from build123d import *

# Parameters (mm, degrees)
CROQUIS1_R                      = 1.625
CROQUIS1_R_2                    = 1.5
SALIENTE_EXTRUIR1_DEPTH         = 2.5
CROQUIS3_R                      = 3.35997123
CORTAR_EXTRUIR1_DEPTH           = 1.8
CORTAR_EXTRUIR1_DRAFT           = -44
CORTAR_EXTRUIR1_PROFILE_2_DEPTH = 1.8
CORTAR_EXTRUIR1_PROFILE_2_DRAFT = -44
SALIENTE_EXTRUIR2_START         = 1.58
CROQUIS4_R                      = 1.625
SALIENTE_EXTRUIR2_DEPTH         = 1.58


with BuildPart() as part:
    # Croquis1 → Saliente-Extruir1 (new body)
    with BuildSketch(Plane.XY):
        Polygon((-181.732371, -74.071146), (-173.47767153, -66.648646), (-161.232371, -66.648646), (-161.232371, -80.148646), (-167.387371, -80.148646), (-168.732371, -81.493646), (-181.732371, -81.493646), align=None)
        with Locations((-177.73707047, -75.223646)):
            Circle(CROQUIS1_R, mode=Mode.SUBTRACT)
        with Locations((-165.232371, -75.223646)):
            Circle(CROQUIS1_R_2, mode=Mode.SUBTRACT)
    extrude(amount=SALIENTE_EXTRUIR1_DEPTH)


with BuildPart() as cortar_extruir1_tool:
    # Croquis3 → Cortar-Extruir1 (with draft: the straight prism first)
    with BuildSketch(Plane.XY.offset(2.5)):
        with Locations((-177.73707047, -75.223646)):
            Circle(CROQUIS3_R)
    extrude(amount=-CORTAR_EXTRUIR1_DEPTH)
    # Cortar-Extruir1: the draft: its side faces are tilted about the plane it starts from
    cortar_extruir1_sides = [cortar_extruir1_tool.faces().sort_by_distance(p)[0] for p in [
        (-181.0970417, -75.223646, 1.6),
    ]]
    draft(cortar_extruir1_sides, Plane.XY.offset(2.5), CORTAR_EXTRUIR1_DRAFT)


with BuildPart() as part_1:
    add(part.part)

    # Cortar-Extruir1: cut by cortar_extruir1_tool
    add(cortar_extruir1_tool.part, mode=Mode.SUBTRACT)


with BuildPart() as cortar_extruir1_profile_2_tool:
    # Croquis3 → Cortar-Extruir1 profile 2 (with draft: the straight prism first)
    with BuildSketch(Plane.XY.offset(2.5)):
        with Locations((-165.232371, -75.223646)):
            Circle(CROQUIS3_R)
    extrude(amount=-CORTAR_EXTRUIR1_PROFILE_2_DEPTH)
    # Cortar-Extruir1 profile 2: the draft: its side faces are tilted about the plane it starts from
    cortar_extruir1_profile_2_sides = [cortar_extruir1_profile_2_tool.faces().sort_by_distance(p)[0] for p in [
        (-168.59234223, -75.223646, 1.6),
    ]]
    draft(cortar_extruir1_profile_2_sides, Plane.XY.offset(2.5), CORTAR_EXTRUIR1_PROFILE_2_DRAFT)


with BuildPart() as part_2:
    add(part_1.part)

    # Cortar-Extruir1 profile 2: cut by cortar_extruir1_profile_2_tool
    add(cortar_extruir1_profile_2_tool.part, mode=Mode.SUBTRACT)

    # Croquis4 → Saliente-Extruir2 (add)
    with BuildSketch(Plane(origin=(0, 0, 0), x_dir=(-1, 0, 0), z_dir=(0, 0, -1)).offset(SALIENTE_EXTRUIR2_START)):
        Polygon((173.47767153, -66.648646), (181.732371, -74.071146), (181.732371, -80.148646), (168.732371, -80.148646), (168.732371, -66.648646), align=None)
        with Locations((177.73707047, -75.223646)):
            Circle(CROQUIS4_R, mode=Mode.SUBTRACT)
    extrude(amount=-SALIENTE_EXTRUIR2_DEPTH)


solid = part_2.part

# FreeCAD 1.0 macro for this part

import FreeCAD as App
import Part
import Sketcher
from FreeCAD import Vector
Q = App.Units.Quantity


def faces_at(feature, points):
    """Names of the faces that lie closest to the given points."""
    faces = feature.Shape.Faces
    near = lambda p: min(range(len(faces)), key=lambda i: faces[i].distToShape(Part.Vertex(*p))[0])
    return sorted({f"Face{near(p) + 1}" for p in points})


def add_polygon(sketch, points):
    """Adds a closed chain of lines whose ends are joined by coincident constraints."""
    first, n = sketch.GeometryCount, len(points)
    for a, b in zip(points, points[1:] + points[:1]):
        sketch.addGeometry(Part.LineSegment(App.Vector(*a, 0), App.Vector(*b, 0)), False)
    for i in range(n):
        sketch.addConstraint(Sketcher.Constraint("Coincident", first + i, 2, first + (i + 1) % n, 1))

doc = App.newDocument("Part")
body = doc.addObject("PartDesign::Body", "Body")

# Sketch on XY plane
sketch1 = body.newObject("Sketcher::SketchObject", "Sketch")
sketch1.AttachmentSupport = (doc.getObject("XY_Plane"), [""])
sketch1.MapMode = "FlatFace"
add_polygon(sketch1, [(-173.5, -66.6), (-181.7, -74.1), (-181.7, -81.5), (-168.7, -81.5), (-167.4, -80.1), (-161.2, -80.1), (-161.2, -66.6)])  # lines 0-6
sketch1.addGeometry(Part.Circle(Vector(-165.2, -75.2, 0), Vector(0, 0, 1), 1.5), False)  # 7
sketch1.addGeometry(Part.Circle(Vector(-177.7, -75.2, 0), Vector(0, 0, 1), 1.6), False)  # 8
sketch1.addConstraint([
    Sketcher.Constraint("Vertical", 1),
    Sketcher.Constraint("Horizontal", 2),
    Sketcher.Constraint("Horizontal", 4),
    Sketcher.Constraint("Vertical", 5),
    Sketcher.Constraint("Horizontal", 6),
    Sketcher.Constraint("Horizontal", 7, 3, 8, 3),
    Sketcher.Constraint("Diameter", 7, Q("3 mm")),
    Sketcher.Constraint("Diameter", 8, Q("3.25 mm")),
    Sketcher.Constraint("DistanceX", 2, 1, 2, 2, Q("13 mm")),
    Sketcher.Constraint("Angle", 3, Q("45 deg")),
    Sketcher.Constraint("DistanceY", 5, 1, 5, 2, Q("13.5 mm")),
    Sketcher.Constraint("DistanceX", 7, 3, 4, 2, Q("4 mm")),
    Sketcher.Constraint("DistanceX", 0, 2, 7, 3, Q("16.5 mm")),
    Sketcher.Constraint("DistanceX", 4, 1, 4, 2, Q("6.155 mm")),
    Sketcher.Constraint("DistanceY", 1, 2, 8, 3, Q("6.27 mm")),
    Sketcher.Constraint("DistanceX", 6, 2, 6, 1, Q("12.245301 mm")),
    Sketcher.Constraint("DistanceY", 1, 2, 1, 1, Q("7.4225 mm")),
    Sketcher.Constraint("DistanceX", 8, 3, 7, 3, Q("12.504699 mm")),
    Sketcher.Constraint("DistanceX", 7, 3, -1, 1, Q("165.232371 mm")),
    Sketcher.Constraint("DistanceY", 7, 3, -1, 1, Q("75.223646 mm")),
])
pad1 = body.newObject("PartDesign::Pad", "Pad")
pad1.Profile = sketch1
pad1.Length = 2.5
body2 = doc.addObject("PartDesign::Body", "Body001")

# Sketch on XY plane
sketch2 = body2.newObject("Sketcher::SketchObject", "Sketch001")
sketch2.AttachmentSupport = (doc.getObject("XY_Plane001"), [""])
sketch2.MapMode = "FlatFace"
sketch2.AttachmentOffset = App.Placement(Vector(0, 0, 2.5), App.Rotation())
sketch2.addGeometry(Part.Circle(Vector(-177.7, -75.2, 0), Vector(0, 0, 1), 3.4), False)
sketch2.addConstraint([
    Sketcher.Constraint("Diameter", 0, Q("6.719942 mm")),
    Sketcher.Constraint("DistanceX", 0, 3, -1, 1, Q("177.73707 mm")),
    Sketcher.Constraint("DistanceY", 0, 3, -1, 1, Q("75.223646 mm")),
])
pad2 = body2.newObject("PartDesign::Pad", "Pad001")
pad2.Profile = sketch2
pad2.Length = 1.8
pad2.Reversed = True
doc.recompute()

datumplane = body2.newObject("PartDesign::Plane", "DatumPlane")
datumplane.AttachmentSupport = (doc.getObject("XY_Plane001"), [""])
datumplane.MapMode = "FlatFace"
datumplane.AttachmentOffset = App.Placement(Vector(0, 0, 2.5), App.Rotation())
draft = body2.newObject("PartDesign::Draft", "Draft")
draft.Base = (pad2, faces_at(pad2, [(-181.097, -75.224, 1.6)]))
draft.NeutralPlane = (datumplane, [""])
draft.Angle = 44
draft.Reversed = True
doc.recompute()

boolean = body.newObject("PartDesign::Boolean", "Boolean")
boolean.Type = "Cut"
boolean.addObjects([body2])
body3 = doc.addObject("PartDesign::Body", "Body002")

# Sketch on XY plane
sketch3 = body3.newObject("Sketcher::SketchObject", "Sketch002")
sketch3.AttachmentSupport = (doc.getObject("XY_Plane002"), [""])
sketch3.MapMode = "FlatFace"
sketch3.AttachmentOffset = App.Placement(Vector(0, 0, 2.5), App.Rotation())
sketch3.addGeometry(Part.Circle(Vector(-165.2, -75.2, 0), Vector(0, 0, 1), 3.4), False)
sketch3.addConstraint([
    Sketcher.Constraint("Diameter", 0, Q("6.719942 mm")),
    Sketcher.Constraint("DistanceX", 0, 3, -1, 1, Q("165.232371 mm")),
    Sketcher.Constraint("DistanceY", 0, 3, -1, 1, Q("75.223646 mm")),
])
pad3 = body3.newObject("PartDesign::Pad", "Pad002")
pad3.Profile = sketch3
pad3.Length = 1.8
pad3.Reversed = True
doc.recompute()

datumplane2 = body3.newObject("PartDesign::Plane", "DatumPlane001")
datumplane2.AttachmentSupport = (doc.getObject("XY_Plane002"), [""])
datumplane2.MapMode = "FlatFace"
datumplane2.AttachmentOffset = App.Placement(Vector(0, 0, 2.5), App.Rotation())
draft2 = body3.newObject("PartDesign::Draft", "Draft001")
draft2.Base = (pad3, faces_at(pad3, [(-168.592, -75.224, 1.6)]))
draft2.NeutralPlane = (datumplane2, [""])
draft2.Angle = 44
draft2.Reversed = True
doc.recompute()

boolean2 = body.newObject("PartDesign::Boolean", "Boolean001")
boolean2.Type = "Cut"
boolean2.addObjects([body3])

# Sketch on XY plane
sketch4 = body.newObject("Sketcher::SketchObject", "Sketch003")
sketch4.AttachmentSupport = (doc.getObject("XY_Plane"), [""])
sketch4.MapMode = "FlatFace"
sketch4.AttachmentOffset = App.Placement(Vector(0, 0, -1.58), App.Rotation())
add_polygon(sketch4, [(-181.7, -74.1), (-173.5, -66.6), (-168.7, -66.6), (-168.7, -80.1), (-181.7, -80.1)])  # lines 0-4
sketch4.addGeometry(Part.Circle(Vector(-177.7, -75.2, 0), Vector(0, 0, 1), 1.6), False)  # 5
sketch4.addConstraint([
    Sketcher.Constraint("Horizontal", 1),
    Sketcher.Constraint("Vertical", 2),
    Sketcher.Constraint("Horizontal", 3),
    Sketcher.Constraint("Vertical", 4),
    Sketcher.Constraint("Diameter", 5, Q("3.25 mm")),
    Sketcher.Constraint("DistanceX", 3, 2, 3, 1, Q("13 mm")),
    Sketcher.Constraint("DistanceY", 2, 2, 2, 1, Q("13.5 mm")),
    Sketcher.Constraint("DistanceX", 1, 1, 1, 2, Q("4.745301 mm")),
    Sketcher.Constraint("DistanceY", 4, 1, 4, 2, Q("6.0775 mm")),
    Sketcher.Constraint("DistanceY", 5, 3, 0, 2, Q("8.575 mm")),
    Sketcher.Constraint("DistanceX", 5, 3, 0, 2, Q("4.259399 mm")),
    Sketcher.Constraint("DistanceX", 5, 3, -1, 1, Q("177.73707 mm")),
    Sketcher.Constraint("DistanceY", 5, 3, -1, 1, Q("75.223646 mm")),
])
pad4 = body.newObject("PartDesign::Pad", "Pad003")
pad4.Profile = sketch4
pad4.Length = 1.58

doc.recompute()
